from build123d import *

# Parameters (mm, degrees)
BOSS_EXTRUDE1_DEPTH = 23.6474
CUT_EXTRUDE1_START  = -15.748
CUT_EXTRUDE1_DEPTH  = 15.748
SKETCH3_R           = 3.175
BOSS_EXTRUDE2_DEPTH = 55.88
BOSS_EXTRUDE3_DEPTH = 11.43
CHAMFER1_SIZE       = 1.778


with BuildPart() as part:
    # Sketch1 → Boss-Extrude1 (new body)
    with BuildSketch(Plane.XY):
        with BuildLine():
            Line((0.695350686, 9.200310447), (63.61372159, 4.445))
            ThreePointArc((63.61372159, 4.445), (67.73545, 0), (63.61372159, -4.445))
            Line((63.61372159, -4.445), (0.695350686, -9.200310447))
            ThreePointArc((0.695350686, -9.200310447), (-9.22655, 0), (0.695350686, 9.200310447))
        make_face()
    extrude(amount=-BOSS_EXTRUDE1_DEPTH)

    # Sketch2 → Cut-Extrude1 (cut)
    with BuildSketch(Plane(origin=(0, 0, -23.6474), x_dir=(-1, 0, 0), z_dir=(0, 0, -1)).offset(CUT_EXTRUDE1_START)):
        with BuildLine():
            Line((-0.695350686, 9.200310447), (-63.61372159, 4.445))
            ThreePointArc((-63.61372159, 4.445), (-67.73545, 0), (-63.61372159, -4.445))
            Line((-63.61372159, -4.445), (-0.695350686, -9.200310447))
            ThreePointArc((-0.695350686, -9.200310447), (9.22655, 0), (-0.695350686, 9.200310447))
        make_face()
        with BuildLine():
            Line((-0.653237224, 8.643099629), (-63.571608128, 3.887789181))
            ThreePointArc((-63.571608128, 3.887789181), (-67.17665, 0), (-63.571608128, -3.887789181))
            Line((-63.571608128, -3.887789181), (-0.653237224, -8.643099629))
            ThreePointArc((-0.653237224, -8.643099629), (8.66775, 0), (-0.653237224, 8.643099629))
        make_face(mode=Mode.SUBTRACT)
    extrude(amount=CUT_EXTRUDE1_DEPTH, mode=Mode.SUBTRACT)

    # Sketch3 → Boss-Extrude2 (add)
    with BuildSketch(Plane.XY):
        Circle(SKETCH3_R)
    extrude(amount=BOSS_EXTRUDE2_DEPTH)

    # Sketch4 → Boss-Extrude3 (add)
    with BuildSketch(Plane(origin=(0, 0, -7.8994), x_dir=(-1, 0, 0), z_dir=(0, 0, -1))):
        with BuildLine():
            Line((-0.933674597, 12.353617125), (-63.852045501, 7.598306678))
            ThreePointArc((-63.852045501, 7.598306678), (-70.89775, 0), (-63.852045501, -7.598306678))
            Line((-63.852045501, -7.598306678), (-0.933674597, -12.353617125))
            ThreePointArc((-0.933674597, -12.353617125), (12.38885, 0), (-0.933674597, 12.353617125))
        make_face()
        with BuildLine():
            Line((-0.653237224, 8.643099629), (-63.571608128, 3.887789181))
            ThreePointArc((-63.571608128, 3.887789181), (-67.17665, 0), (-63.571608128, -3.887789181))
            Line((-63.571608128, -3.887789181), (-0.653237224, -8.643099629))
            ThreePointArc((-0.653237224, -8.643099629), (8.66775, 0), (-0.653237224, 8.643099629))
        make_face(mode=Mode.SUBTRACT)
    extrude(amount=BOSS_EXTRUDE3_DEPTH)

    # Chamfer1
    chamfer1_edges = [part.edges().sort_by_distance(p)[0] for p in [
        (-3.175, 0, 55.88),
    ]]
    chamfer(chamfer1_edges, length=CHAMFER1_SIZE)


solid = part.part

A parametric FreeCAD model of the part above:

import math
import FreeCAD as App
import Part
import Sketcher
Q = App.Units.Quantity


def edges_at(feature, points):
    """Names of the edges that pass closest to the given points."""
    edges = feature.Shape.Edges
    near = lambda p: min(range(len(edges)), key=lambda i: edges[i].distToShape(Part.Vertex(*p))[0])
    return sorted({f"Edge{near(p) + 1}" for p in points})

doc = App.newDocument("Part")
body = doc.addObject("PartDesign::Body", "Body")

# Sketch on XY plane
sketch1 = doc.addObject("Sketcher::SketchObject", "Sketch")
body.addObject(sketch1)
sketch1.AttachmentSupport = (doc.XY_Plane, [""])
sketch1.MapMode = "FlatFace"
sketch1.addGeometry([
    Part.LineSegment(App.Vector(63.613722, 4.445, 0), App.Vector(0.695351, 9.20031, 0)),
    Part.ArcOfCircle(Part.Circle(App.Vector(0, 0, 0), App.Vector(0, 0, 1), 9.22655), math.radians(85.677857), math.radians(274.322143)),
    Part.LineSegment(App.Vector(0.695351, -9.20031, 0), App.Vector(63.613722, -4.445, 0)),
    Part.ArcOfCircle(Part.Circle(App.Vector(63.277773, 0, 0), App.Vector(0, 0, 1), 4.457677), math.radians(-85.677857), math.radians(85.677857)),
], False)
sketch1.addConstraint([
    Sketcher.Constraint("Coincident", 0, 2, 1, 1),
    Sketcher.Constraint("Coincident", 1, 2, 2, 1),
    Sketcher.Constraint("Coincident", 2, 2, 3, 1),
    Sketcher.Constraint("Coincident", 3, 2, 0, 1),
    Sketcher.Constraint("Coincident", 1, 3, -1, 1),
    Sketcher.Constraint("PointOnObject", 3, 3, -1),
    Sketcher.Constraint("DistanceY", 2, 2, 3, 2, Q("0.35 in")),
    Sketcher.Constraint("DistanceY", 2, 2, -1, 1, Q("0.175 in")),
    Sketcher.Constraint("Radius", 1, 9.22655),
    Sketcher.Constraint("Radius", 3, 4.457677),
    Sketcher.Constraint("DistanceX", -1, 1, 0, 2, 0.695351),
    Sketcher.Constraint("DistanceX", -1, 1, 1, 2, 0.695351),
    Sketcher.Constraint("DistanceX", -1, 1, 2, 2, 63.613722),
])
pad1 = doc.addObject("PartDesign::Pad", "Pad")
body.addObject(pad1)
pad1.Profile = sketch1
pad1.Length = Q("0.931 in")
pad1.Reversed = True

# Sketch on XY plane
sketch2 = doc.addObject("Sketcher::SketchObject", "Sketch001")
body.addObject(sketch2)
sketch2.AttachmentSupport = (doc.XY_Plane, [""])
sketch2.MapMode = "FlatFace"
sketch2.AttachmentOffset = App.Placement(App.Vector(0, 0, -0.311 * 25.4), App.Rotation())
sketch2.addGeometry([
    Part.LineSegment(App.Vector(0.695351, 9.20031, 0), App.Vector(63.613722, 4.445, 0)),  # 0
    Part.ArcOfCircle(Part.Circle(App.Vector(63.277773, 0, 0), App.Vector(0, 0, 1), 4.457677), math.radians(-85.677857), math.radians(85.677857)),  # 1
    Part.LineSegment(App.Vector(63.613722, -4.445, 0), App.Vector(0.695351, -9.20031, 0)),  # 2
    Part.ArcOfCircle(Part.Circle(App.Vector(0, 0, 0), App.Vector(0, 0, 1), 9.22655), math.radians(85.677857), math.radians(274.322143)),  # 3
    Part.LineSegment(App.Vector(63.571608, 3.887789, 0), App.Vector(0.653237, 8.6431, 0)),  # 4
    Part.ArcOfCircle(Part.Circle(App.Vector(0, 0, 0), App.Vector(0, 0, 1), 8.66775), math.radians(85.677857), math.radians(274.322143)),  # 5
    Part.LineSegment(App.Vector(0.653237, -8.6431, 0), App.Vector(63.571608, -3.887789, 0)),  # 6
    Part.ArcOfCircle(Part.Circle(App.Vector(63.277773, 0, 0), App.Vector(0, 0, 1), 3.898877), math.radians(-85.677857), math.radians(85.677857)),  # 7
], False)
sketch2.addConstraint([
    Sketcher.Constraint("Tangent", 0, 2, 1, 2),
    Sketcher.Constraint("Tangent", 1, 1, 2, 1),
    Sketcher.Constraint("Tangent", 2, 2, 3, 2),
    Sketcher.Constraint("Tangent", 3, 1, 0, 1),
    Sketcher.Constraint("Tangent", 4, 2, 5, 1),
    Sketcher.Constraint("Tangent", 5, 2, 6, 1),
    Sketcher.Constraint("Tangent", 6, 2, 7, 1),
    Sketcher.Constraint("Tangent", 7, 2, 4, 1),
    Sketcher.Constraint("Coincident", 3, 3, -1, 1),
    Sketcher.Constraint("Coincident", 5, 3, -1, 1),
    Sketcher.Constraint("Coincident", 7, 3, 1, 3),
    Sketcher.Constraint("PointOnObject", 1, 3, -1),
    Sketcher.Constraint("Parallel", 0, 4),
    Sketcher.Constraint("DistanceY", 1, 1, 0, 2, Q("0.35 in")),
    Sketcher.Constraint("Radius", 3, 9.22655),
    Sketcher.Constraint("Radius", 5, 8.66775),
    Sketcher.Constraint("DistanceX", -1, 1, 0, 2, 63.613722),
])
pocket1 = doc.addObject("PartDesign::Pocket", "Pocket")
body.addObject(pocket1)
pocket1.Profile = sketch2
pocket1.Length = Q("0.62 in")

# Sketch on XY plane
sketch3 = doc.addObject("Sketcher::SketchObject", "Sketch002")
body.addObject(sketch3)
sketch3.AttachmentSupport = (doc.XY_Plane, [""])
sketch3.MapMode = "FlatFace"
sketch3.addGeometry(Part.Circle(App.Vector(0, 0, 0), App.Vector(0, 0, 1), 3.175), False)
sketch3.addConstraint([
    Sketcher.Constraint("Coincident", 0, 3, -1, 1),
    Sketcher.Constraint("Diameter", 0, Q("0.25 in")),
])
pad2 = doc.addObject("PartDesign::Pad", "Pad001")
body.addObject(pad2)
pad2.Profile = sketch3
pad2.Length = Q("2.2 in")

# Sketch on XY plane
sketch4 = doc.addObject("Sketcher::SketchObject", "Sketch003")
body.addObject(sketch4)
sketch4.AttachmentSupport = (doc.XY_Plane, [""])
sketch4.MapMode = "FlatFace"
sketch4.AttachmentOffset = App.Placement(App.Vector(0, 0, -0.311 * 25.4), App.Rotation())
sketch4.addGeometry([
    Part.LineSegment(App.Vector(0.933675, 12.353617, 0), App.Vector(63.852046, 7.598307, 0)),  # 0
    Part.ArcOfCircle(Part.Circle(App.Vector(63.277773, 0, 0), App.Vector(0, 0, 1), 7.619977), math.radians(-85.677857), math.radians(85.677857)),  # 1
    Part.LineSegment(App.Vector(63.852046, -7.598307, 0), App.Vector(0.933675, -12.353617, 0)),  # 2
    Part.ArcOfCircle(Part.Circle(App.Vector(0, 0, 0), App.Vector(0, 0, 1), 12.38885), math.radians(85.677857), math.radians(274.322143)),  # 3
    Part.LineSegment(App.Vector(63.571608, 3.887789, 0), App.Vector(0.653237, 8.6431, 0)),  # 4
    Part.ArcOfCircle(Part.Circle(App.Vector(0, 0, 0), App.Vector(0, 0, 1), 8.66775), math.radians(85.677857), math.radians(274.322143)),  # 5
    Part.LineSegment(App.Vector(0.653237, -8.6431, 0), App.Vector(63.571608, -3.887789, 0)),  # 6
    Part.ArcOfCircle(Part.Circle(App.Vector(63.277773, 0, 0), App.Vector(0, 0, 1), 3.898877), math.radians(-85.677857), math.radians(85.677857)),  # 7
], False)
sketch4.addConstraint([
    Sketcher.Constraint("Tangent", 0, 2, 1, 2),
    Sketcher.Constraint("Tangent", 1, 1, 2, 1),
    Sketcher.Constraint("Tangent", 2, 2, 3, 2),
    Sketcher.Constraint("Tangent", 3, 1, 0, 1),
    Sketcher.Constraint("Tangent", 4, 2, 5, 1),
    Sketcher.Constraint("Tangent", 5, 2, 6, 1),
    Sketcher.Constraint("Tangent", 6, 2, 7, 1),
    Sketcher.Constraint("Tangent", 7, 2, 4, 1),
    Sketcher.Constraint("Coincident", 3, 3, -1, 1),
    Sketcher.Constraint("Coincident", 5, 3, -1, 1),
    Sketcher.Constraint("Coincident", 7, 3, 1, 3),
    Sketcher.Constraint("PointOnObject", 1, 3, -1),
    Sketcher.Constraint("Parallel", 0, 4),
    Sketcher.Constraint("Radius", 3, 12.38885),
    Sketcher.Constraint("Radius", 5, 8.66775),
    Sketcher.Constraint("Radius", 1, 7.619977),
    Sketcher.Constraint("DistanceX", 2, 2, 1, 3, 62.344098),
])
pad3 = doc.addObject("PartDesign::Pad", "Pad002")
body.addObject(pad3)
pad3.Profile = sketch4
pad3.Length = Q("0.45 in")
pad3.Reversed = True
doc.recompute()

chamfer = doc.addObject("PartDesign::Chamfer", "Chamfer")
body.addObject(chamfer)
chamfer.Base = (pad3, edges_at(pad3, [(-3.175, 0, 55.88)]))
chamfer.Size = Q("0.07 in")

doc.recompute()
